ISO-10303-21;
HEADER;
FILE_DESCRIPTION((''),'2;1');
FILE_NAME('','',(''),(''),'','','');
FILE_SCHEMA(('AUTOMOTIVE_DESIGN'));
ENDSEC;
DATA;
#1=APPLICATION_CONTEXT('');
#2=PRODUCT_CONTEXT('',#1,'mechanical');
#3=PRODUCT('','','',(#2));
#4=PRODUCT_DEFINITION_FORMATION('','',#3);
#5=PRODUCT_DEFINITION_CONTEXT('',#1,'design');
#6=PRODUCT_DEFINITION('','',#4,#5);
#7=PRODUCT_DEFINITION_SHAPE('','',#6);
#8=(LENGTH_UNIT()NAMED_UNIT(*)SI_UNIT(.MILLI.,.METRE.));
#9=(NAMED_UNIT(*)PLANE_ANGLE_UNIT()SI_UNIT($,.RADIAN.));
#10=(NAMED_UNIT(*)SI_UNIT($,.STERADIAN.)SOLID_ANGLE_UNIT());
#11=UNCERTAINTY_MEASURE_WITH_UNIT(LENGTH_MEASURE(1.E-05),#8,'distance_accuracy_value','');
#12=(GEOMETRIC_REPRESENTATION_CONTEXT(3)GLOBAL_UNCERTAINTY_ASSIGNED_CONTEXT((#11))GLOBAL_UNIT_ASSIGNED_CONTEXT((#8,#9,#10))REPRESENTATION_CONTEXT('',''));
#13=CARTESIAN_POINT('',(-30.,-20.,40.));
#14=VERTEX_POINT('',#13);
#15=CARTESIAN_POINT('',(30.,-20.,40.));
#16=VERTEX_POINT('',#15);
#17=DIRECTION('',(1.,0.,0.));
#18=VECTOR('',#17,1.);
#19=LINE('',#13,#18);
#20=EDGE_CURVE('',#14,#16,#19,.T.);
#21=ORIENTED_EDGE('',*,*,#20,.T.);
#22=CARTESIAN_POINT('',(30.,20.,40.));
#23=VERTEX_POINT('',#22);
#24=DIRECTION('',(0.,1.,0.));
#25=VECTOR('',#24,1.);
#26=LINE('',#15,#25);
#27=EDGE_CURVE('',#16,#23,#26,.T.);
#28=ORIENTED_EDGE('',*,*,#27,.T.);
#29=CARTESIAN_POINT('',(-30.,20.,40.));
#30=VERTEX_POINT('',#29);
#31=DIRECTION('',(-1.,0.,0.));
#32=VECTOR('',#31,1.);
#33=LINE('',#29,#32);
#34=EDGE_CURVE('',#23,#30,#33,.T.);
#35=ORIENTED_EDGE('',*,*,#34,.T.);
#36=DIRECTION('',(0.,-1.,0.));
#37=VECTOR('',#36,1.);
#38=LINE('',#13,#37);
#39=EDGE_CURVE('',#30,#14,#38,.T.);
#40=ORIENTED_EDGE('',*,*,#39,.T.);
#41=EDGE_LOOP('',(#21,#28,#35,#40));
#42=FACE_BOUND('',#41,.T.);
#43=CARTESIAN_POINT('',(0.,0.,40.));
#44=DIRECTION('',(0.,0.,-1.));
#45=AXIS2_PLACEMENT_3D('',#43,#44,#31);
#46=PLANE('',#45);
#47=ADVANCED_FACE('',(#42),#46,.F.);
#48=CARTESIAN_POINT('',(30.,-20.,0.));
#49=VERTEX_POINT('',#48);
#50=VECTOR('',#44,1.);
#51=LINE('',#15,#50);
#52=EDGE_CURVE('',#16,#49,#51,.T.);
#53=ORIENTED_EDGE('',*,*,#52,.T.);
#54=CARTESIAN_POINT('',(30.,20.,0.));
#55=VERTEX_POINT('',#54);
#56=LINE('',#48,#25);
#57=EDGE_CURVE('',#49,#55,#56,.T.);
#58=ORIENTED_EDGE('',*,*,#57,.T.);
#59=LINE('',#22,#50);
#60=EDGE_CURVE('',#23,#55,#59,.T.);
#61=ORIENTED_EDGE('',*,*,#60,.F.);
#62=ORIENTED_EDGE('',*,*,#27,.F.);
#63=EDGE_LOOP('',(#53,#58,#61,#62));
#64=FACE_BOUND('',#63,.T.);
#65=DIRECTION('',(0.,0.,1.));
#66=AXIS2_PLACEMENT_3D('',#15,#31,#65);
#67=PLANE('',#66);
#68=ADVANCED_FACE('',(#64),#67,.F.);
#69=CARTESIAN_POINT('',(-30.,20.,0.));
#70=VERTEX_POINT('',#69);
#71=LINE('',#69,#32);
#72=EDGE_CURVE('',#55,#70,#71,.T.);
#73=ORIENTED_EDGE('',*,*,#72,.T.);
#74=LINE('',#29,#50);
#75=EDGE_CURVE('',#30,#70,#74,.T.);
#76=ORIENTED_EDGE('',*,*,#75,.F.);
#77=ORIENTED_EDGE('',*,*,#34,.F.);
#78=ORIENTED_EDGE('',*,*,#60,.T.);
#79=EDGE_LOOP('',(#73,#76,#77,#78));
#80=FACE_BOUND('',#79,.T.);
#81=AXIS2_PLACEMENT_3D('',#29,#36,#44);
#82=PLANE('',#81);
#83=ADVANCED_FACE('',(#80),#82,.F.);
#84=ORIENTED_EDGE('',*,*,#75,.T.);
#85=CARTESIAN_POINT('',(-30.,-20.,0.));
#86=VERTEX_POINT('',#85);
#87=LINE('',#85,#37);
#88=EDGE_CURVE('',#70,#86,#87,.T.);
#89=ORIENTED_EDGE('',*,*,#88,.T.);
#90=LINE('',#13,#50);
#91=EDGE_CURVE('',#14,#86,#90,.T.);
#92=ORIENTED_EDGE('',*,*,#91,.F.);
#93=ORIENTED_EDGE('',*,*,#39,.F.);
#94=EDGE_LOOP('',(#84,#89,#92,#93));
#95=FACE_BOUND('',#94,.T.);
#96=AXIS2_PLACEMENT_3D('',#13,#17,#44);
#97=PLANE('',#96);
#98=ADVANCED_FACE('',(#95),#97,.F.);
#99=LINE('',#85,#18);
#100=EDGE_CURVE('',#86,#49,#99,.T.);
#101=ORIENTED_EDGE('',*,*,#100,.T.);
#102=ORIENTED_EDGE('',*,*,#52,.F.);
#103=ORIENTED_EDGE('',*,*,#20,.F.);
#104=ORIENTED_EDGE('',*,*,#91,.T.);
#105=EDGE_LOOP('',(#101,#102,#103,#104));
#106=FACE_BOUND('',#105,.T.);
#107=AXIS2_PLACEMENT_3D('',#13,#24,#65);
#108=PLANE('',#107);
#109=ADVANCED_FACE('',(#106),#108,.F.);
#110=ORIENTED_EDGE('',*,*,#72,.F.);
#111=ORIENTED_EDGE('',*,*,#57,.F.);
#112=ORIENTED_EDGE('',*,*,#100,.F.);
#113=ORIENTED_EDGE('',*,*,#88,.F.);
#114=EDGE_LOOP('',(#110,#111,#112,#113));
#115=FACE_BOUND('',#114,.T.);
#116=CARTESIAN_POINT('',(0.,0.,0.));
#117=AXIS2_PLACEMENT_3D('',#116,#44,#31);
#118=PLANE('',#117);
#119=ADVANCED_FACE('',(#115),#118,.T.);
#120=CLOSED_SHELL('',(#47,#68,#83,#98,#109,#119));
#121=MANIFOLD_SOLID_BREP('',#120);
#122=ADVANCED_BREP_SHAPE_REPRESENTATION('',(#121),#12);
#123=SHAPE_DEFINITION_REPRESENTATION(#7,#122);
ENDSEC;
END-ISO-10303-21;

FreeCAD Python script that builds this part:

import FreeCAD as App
import Part
import Sketcher

doc = App.newDocument("Part")
body = doc.addObject("PartDesign::Body", "Body")

# Sketch on XY plane
sketch1 = body.newObject("Sketcher::SketchObject", "Sketch")
sketch1.AttachmentSupport = (doc.getObject("XY_Plane"), [""])
sketch1.MapMode = "FlatFace"
sketch1.addGeometry(Part.LineSegment(App.Vector(-30, 20, 0), App.Vector(-30, -20, 0)), False)
sketch1.addGeometry(Part.LineSegment(App.Vector(-30, -20, 0), App.Vector(30, -20, 0)), False)
sketch1.addGeometry(Part.LineSegment(App.Vector(30, -20, 0), App.Vector(30, 20, 0)), False)
sketch1.addGeometry(Part.LineSegment(App.Vector(30, 20, 0), App.Vector(-30, 20, 0)), False)
sketch1.addConstraint(Sketcher.Constraint("Coincident", 0, 2, 1, 1))
sketch1.addConstraint(Sketcher.Constraint("Coincident", 1, 2, 2, 1))
sketch1.addConstraint(Sketcher.Constraint("Coincident", 2, 2, 3, 1))
sketch1.addConstraint(Sketcher.Constraint("Coincident", 3, 2, 0, 1))
sketch1.addConstraint(Sketcher.Constraint("Vertical", 0))
sketch1.addConstraint(Sketcher.Constraint("Horizontal", 1))
sketch1.addConstraint(Sketcher.Constraint("Vertical", 2))
sketch1.addConstraint(Sketcher.Constraint("Horizontal", 3))
sketch1.addConstraint(Sketcher.Constraint("Symmetric", 0, 2, 2, 2, -1, 1))
sketch1.addConstraint(Sketcher.Constraint("DistanceX", 1, 1, 1, 2, 60.0))
sketch1.addConstraint(Sketcher.Constraint("DistanceY", 0, 2, 0, 1, 40.0))
pad1 = body.newObject("PartDesign::Pad", "Pad")
pad1.Profile = sketch1
pad1.Length = 40

doc.recompute()
